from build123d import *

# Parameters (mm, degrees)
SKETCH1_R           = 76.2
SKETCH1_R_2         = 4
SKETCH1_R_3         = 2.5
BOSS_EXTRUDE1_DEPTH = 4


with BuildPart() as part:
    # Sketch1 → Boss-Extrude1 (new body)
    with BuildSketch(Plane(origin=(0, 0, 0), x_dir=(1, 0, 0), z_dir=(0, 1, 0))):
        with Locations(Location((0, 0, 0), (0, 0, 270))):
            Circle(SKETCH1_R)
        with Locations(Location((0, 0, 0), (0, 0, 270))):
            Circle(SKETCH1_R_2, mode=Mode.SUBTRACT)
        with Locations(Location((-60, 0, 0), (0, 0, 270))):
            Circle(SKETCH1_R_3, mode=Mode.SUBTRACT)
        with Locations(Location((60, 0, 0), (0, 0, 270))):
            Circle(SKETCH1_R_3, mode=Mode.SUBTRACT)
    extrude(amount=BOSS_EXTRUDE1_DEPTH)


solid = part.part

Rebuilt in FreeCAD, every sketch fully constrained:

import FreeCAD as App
import Part
import Sketcher

doc = App.newDocument("Part")
params = doc.addObject("Spreadsheet::Sheet", "Params")
for row, (alias, value) in enumerate([
    ("sketch1_diameter", "5 mm"),
    ("sketch1_diameter2", "8 mm"),
    ("sketch1_diameter3", "152.4 mm"),
    ("pad1_length", "4 mm"),
], start=1):
    params.set(f"A{row}", alias)
    params.set(f"B{row}", "=" + value)
    params.setAlias(f"B{row}", alias)

body = doc.addObject("PartDesign::Body", "Body")

# Sketch on XZ plane
sketch1 = body.newObject("Sketcher::SketchObject", "Sketch")
sketch1.AttachmentSupport = (doc.getObject("XZ_Plane"), [""])
sketch1.MapMode = "FlatFace"
sketch1.addGeometry([
    Part.Circle(App.Vector(0, 0, 0), App.Vector(0, 0, 1), 76.2),
    Part.Circle(App.Vector(-60, 0, 0), App.Vector(0, 0, 1), 2.5),
    Part.Circle(App.Vector(60, 0, 0), App.Vector(0, 0, 1), 2.5),
    Part.Circle(App.Vector(0, 0, 0), App.Vector(0, 0, 1), 4),
], False)
sketch1.addConstraint([
    Sketcher.Constraint("Coincident", 0, 3, -1, 1),
    Sketcher.Constraint("Coincident", 3, 3, -1, 1),
    Sketcher.Constraint("Equal", 1, 2),
    Sketcher.Constraint("Symmetric", 1, 3, 2, 3, -1, 1),
    Sketcher.Constraint("PointOnObject", 1, 3, -1),
    Sketcher.Constraint("Diameter", 1, 5.0),
    Sketcher.Constraint("Diameter", 3, 8.0),
    Sketcher.Constraint("Diameter", 0, 152.4),
    Sketcher.Constraint("DistanceX", 1, 3, -1, 1, 60.0),
])
sketch1.setExpression("Constraints[5]", "Params.sketch1_diameter")
sketch1.setExpression("Constraints[6]", "Params.sketch1_diameter2")
sketch1.setExpression("Constraints[7]", "Params.sketch1_diameter3")
pad1 = body.newObject("PartDesign::Pad", "Pad")
pad1.Profile = sketch1
pad1.setExpression("Length", "Params.pad1_length")
pad1.Reversed = True

doc.recompute()
